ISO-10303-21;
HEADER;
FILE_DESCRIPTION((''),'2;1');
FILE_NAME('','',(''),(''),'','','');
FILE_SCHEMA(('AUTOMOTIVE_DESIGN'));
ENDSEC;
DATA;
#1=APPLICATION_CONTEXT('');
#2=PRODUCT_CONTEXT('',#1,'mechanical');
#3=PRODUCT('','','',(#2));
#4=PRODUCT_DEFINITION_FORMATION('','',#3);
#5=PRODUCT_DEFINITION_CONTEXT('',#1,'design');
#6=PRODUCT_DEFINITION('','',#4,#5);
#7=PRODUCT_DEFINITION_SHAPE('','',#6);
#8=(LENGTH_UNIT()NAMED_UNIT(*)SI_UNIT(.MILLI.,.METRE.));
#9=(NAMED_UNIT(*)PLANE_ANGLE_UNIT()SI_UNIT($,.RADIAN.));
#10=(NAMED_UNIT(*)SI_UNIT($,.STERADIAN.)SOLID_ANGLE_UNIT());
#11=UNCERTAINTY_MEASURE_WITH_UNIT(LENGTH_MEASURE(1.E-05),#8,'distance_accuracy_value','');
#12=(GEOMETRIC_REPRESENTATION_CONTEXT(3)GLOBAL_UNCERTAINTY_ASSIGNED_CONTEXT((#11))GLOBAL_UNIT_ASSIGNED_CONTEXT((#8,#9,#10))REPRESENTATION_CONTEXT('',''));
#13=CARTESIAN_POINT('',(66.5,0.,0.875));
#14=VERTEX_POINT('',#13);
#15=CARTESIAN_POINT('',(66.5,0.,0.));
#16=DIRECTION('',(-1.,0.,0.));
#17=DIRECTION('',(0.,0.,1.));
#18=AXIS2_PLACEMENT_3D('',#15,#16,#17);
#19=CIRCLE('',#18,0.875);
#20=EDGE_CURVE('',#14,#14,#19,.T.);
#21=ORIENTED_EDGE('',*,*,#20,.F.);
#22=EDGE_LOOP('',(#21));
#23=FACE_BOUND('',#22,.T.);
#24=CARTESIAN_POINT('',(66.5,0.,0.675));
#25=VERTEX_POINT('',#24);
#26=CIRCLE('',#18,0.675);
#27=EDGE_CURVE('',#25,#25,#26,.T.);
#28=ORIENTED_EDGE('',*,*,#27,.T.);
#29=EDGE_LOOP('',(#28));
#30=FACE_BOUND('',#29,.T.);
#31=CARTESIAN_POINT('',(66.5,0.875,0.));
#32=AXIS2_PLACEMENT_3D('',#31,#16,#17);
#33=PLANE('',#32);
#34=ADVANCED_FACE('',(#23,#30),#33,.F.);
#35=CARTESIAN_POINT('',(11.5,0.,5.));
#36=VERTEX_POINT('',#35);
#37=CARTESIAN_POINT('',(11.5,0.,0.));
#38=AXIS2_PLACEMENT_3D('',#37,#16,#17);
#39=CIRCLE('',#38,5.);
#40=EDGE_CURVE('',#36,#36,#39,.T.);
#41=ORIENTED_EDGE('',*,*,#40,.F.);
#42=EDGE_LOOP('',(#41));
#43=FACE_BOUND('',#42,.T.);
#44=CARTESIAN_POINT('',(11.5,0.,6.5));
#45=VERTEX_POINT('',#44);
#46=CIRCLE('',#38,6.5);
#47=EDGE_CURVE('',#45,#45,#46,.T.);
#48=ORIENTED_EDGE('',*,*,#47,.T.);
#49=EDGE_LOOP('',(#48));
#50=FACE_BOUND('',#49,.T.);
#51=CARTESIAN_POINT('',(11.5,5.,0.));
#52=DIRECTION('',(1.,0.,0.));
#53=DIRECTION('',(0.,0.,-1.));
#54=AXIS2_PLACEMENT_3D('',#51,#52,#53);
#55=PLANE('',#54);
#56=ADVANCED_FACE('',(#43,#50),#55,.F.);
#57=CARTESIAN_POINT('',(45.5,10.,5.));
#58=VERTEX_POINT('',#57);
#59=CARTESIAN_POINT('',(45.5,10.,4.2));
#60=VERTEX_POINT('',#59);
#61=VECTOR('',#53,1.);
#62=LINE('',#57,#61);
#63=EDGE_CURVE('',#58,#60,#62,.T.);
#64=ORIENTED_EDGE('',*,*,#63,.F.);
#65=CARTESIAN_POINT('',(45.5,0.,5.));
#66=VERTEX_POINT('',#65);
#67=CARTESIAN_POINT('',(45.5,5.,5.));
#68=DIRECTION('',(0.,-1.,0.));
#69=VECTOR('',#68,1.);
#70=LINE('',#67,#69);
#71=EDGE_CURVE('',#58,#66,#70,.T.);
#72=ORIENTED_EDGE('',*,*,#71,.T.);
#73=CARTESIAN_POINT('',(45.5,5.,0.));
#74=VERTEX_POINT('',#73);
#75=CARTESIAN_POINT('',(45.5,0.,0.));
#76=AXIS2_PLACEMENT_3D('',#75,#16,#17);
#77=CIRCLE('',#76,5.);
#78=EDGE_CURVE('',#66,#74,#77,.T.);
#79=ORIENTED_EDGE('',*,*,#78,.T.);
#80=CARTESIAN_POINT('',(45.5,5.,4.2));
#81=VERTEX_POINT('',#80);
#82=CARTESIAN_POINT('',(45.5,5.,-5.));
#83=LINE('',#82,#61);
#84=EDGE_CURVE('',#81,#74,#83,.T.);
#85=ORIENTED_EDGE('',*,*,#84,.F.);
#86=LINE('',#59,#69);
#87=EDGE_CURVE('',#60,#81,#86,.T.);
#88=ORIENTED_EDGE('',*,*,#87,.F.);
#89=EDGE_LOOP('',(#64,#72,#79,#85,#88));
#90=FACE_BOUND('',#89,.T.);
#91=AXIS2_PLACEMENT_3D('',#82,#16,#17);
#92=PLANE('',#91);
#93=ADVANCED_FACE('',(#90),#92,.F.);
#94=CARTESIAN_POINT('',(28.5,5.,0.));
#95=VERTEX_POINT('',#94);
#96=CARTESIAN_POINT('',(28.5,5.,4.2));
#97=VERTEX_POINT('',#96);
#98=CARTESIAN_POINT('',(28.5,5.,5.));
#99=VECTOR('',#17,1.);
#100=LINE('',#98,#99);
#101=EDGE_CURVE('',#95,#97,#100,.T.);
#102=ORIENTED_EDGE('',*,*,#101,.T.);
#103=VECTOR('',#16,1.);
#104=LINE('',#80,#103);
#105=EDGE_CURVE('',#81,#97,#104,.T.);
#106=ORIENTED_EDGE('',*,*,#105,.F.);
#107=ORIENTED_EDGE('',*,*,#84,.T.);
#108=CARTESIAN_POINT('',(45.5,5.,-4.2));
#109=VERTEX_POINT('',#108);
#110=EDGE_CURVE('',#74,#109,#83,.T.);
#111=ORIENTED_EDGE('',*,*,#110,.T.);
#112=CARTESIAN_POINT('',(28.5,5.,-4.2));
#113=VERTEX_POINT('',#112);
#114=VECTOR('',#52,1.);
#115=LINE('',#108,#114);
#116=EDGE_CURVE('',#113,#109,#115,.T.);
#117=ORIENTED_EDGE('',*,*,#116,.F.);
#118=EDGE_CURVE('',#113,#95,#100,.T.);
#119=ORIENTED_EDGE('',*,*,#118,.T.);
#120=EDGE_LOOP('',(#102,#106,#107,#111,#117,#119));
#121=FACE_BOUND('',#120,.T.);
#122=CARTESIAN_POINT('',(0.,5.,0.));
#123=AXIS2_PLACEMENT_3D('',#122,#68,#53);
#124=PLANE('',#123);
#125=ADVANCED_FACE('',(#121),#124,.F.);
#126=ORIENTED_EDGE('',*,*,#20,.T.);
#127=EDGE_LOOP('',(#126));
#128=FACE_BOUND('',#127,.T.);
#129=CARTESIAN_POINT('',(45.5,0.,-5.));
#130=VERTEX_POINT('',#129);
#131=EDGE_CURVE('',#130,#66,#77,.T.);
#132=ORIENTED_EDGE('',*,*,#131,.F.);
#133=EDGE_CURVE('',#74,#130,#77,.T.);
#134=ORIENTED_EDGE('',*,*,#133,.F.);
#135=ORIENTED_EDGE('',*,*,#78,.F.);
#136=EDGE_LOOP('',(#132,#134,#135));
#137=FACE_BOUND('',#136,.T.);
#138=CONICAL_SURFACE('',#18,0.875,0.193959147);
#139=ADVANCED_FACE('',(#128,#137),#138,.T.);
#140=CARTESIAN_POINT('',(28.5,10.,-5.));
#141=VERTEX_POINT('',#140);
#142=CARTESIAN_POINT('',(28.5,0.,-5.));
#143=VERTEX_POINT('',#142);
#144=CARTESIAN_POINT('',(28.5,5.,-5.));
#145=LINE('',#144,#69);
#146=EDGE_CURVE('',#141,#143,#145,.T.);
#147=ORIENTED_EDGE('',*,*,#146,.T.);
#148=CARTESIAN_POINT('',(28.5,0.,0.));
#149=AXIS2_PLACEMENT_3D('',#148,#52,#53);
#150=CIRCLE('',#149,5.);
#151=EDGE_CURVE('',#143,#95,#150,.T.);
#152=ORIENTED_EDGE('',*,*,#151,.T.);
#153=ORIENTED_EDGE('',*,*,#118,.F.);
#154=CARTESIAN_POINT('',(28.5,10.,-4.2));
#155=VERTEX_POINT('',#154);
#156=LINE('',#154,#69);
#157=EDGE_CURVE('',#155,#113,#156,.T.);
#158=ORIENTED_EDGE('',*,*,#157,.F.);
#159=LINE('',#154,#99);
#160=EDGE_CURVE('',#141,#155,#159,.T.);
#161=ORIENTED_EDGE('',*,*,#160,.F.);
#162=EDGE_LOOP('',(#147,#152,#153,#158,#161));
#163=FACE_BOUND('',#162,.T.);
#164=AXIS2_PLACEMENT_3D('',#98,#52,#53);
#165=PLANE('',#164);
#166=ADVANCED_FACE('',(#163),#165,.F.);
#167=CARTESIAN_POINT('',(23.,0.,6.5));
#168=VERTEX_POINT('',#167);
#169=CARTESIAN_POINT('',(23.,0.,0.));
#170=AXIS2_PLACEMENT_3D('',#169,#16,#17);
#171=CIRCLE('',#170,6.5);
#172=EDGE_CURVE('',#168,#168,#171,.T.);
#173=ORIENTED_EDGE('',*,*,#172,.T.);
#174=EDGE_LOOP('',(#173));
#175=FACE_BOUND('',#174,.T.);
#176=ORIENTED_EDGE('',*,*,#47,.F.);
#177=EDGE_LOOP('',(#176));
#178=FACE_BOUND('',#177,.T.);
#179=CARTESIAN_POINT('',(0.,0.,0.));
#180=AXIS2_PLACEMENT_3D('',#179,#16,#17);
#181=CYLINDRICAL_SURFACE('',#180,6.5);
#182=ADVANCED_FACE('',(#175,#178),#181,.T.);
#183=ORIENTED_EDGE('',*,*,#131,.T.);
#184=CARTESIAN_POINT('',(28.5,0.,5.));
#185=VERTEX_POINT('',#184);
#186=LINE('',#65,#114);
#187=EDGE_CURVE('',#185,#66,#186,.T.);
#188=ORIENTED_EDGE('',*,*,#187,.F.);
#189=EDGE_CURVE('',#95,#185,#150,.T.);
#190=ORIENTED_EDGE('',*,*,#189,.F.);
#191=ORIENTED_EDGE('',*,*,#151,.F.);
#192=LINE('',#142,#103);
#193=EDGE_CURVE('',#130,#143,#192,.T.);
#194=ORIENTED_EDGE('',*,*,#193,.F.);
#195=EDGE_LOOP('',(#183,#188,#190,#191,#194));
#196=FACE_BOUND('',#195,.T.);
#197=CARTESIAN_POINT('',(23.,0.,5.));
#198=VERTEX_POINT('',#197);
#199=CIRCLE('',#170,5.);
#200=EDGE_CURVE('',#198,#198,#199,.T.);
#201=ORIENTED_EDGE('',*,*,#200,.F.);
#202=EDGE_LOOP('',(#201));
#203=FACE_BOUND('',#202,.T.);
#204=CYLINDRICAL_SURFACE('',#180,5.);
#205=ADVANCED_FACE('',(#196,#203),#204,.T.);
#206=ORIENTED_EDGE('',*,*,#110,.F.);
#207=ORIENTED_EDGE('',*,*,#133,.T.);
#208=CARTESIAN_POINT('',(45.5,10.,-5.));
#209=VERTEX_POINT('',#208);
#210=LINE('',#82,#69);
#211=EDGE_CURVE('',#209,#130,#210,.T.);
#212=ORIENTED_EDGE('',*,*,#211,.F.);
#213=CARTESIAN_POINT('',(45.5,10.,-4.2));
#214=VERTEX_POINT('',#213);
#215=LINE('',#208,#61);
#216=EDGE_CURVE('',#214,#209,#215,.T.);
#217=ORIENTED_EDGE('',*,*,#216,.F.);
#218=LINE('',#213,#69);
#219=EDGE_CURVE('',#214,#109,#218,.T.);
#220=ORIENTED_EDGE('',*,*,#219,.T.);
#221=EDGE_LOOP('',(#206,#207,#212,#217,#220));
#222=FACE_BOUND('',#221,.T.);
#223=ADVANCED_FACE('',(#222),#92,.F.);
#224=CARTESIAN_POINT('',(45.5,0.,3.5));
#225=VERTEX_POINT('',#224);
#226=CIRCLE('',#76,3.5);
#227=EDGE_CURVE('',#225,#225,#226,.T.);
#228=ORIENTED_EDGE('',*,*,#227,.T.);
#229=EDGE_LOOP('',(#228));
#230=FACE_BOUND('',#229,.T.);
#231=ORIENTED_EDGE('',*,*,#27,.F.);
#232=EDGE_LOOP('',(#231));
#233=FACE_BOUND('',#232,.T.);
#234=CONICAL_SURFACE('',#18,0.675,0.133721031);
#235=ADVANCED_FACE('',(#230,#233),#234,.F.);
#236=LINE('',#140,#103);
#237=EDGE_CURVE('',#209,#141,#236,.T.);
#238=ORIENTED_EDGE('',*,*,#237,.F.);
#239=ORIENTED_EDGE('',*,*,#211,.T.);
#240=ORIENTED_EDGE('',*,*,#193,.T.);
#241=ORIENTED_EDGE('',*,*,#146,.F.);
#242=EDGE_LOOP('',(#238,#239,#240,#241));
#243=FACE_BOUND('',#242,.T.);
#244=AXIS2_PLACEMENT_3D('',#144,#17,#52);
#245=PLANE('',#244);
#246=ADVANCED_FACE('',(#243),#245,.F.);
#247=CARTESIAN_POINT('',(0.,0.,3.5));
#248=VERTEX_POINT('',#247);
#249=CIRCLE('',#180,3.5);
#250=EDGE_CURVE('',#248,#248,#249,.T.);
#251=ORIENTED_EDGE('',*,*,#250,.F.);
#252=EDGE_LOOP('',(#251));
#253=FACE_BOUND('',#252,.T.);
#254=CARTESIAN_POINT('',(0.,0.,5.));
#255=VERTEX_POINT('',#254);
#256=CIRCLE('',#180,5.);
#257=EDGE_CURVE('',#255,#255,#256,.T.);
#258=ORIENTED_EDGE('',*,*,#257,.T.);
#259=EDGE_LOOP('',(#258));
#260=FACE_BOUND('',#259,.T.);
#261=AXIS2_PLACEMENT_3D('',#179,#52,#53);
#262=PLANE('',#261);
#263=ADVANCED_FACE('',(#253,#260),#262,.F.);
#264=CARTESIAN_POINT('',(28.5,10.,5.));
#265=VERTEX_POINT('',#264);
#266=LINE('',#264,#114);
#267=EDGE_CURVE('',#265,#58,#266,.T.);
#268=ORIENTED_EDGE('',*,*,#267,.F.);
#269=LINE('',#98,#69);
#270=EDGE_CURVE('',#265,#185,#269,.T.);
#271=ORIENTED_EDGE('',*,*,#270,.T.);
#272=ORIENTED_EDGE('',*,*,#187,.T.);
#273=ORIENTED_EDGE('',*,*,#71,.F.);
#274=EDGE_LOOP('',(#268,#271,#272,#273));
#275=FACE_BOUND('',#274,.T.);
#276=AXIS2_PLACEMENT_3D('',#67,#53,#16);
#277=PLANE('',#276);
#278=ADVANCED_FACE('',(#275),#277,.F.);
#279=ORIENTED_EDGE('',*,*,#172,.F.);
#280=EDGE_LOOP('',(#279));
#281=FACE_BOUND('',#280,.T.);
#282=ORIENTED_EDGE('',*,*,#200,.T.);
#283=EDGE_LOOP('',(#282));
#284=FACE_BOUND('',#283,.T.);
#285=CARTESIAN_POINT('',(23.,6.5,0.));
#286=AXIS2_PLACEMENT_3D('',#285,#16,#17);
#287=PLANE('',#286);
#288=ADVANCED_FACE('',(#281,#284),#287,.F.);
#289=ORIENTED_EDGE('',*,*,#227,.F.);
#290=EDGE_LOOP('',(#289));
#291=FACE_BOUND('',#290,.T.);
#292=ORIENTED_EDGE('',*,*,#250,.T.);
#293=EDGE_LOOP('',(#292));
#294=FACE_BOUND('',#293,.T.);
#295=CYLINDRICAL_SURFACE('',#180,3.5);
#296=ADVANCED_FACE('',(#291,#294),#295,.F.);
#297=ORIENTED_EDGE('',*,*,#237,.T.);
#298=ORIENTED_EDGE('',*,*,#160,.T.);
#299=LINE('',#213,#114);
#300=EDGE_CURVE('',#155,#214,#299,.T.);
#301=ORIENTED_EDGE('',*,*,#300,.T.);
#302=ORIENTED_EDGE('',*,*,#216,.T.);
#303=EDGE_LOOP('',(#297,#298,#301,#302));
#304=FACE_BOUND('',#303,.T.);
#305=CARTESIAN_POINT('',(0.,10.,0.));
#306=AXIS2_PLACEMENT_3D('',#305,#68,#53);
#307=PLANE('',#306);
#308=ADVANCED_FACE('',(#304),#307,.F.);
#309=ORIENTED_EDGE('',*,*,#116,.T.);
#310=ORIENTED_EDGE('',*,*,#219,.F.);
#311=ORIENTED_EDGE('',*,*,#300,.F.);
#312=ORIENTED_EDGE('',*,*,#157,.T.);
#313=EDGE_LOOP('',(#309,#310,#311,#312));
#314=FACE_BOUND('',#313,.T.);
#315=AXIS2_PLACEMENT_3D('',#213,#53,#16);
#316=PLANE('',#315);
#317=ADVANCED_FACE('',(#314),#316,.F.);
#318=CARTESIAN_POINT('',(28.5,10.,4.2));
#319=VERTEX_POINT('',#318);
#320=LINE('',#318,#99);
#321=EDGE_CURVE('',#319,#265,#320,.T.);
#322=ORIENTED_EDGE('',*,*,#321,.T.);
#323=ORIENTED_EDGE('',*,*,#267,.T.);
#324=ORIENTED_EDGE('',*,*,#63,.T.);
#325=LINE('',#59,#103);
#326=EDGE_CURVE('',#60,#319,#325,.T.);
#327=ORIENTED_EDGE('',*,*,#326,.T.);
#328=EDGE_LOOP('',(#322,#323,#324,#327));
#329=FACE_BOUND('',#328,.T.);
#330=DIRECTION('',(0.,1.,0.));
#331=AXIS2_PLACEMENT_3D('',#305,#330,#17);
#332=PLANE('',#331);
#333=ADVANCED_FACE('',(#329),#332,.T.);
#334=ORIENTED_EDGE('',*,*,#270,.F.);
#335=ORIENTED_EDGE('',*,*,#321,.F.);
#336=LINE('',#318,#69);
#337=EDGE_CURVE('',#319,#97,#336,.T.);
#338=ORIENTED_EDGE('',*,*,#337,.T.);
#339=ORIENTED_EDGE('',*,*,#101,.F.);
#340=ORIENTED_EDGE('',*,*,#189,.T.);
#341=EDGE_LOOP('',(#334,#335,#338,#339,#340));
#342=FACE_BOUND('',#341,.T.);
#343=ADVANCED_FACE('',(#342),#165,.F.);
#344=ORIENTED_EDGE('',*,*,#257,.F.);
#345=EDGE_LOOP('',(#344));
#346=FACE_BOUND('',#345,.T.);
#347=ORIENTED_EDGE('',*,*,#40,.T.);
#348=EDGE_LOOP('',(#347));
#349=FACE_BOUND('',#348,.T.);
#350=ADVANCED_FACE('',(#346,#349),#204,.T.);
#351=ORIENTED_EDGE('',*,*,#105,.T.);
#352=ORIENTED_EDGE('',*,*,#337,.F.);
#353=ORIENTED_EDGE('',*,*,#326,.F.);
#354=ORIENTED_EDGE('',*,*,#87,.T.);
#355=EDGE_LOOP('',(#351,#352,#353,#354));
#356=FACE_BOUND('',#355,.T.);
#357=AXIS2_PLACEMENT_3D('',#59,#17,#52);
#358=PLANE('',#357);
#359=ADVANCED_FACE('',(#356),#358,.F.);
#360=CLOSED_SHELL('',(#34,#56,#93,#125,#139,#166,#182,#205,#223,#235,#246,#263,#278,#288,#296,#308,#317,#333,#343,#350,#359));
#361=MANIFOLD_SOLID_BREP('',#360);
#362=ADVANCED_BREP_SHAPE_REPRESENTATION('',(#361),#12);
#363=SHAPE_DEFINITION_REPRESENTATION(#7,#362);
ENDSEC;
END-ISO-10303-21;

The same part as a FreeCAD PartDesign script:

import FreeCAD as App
import Part
import Sketcher
from FreeCAD import Vector
Q = App.Units.Quantity

doc = App.newDocument("Part")
body = doc.addObject("PartDesign::Body", "Body")

# Sketch on XY plane
sketch1 = body.newObject("Sketcher::SketchObject", "Sketch")
sketch1.AttachmentSupport = (doc.getObject("XY_Plane"), [""])
sketch1.MapMode = "FlatFace"
sketch1.addGeometry([
    Part.LineSegment(Vector(0, 5, 0), Vector(0, 0, 0)),  # 0
    Part.LineSegment(Vector(0, 0, 0), Vector(66.5, 0, 0)),  # 1
    Part.LineSegment(Vector(66.5, 0, 0), Vector(66.5, 0.875, 0)),  # 2
    Part.LineSegment(Vector(66.5, 0.875, 0), Vector(45.5, 5, 0)),  # 3
    Part.LineSegment(Vector(45.5, 5, 0), Vector(23, 5, 0)),  # 4
    Part.LineSegment(Vector(23, 5, 0), Vector(23, 6.5, 0)),  # 5
    Part.LineSegment(Vector(23, 6.5, 0), Vector(11.5, 6.5, 0)),  # 6
    Part.LineSegment(Vector(11.5, 6.5, 0), Vector(11.5, 5, 0)),  # 7
    Part.LineSegment(Vector(11.5, 5, 0), Vector(0, 5, 0)),  # 8
], False)
sketch1.addConstraint([
    Sketcher.Constraint("Coincident", 0, 2, 1, 1),
    Sketcher.Constraint("Coincident", 1, 2, 2, 1),
    Sketcher.Constraint("Coincident", 2, 2, 3, 1),
    Sketcher.Constraint("Coincident", 3, 2, 4, 1),
    Sketcher.Constraint("Coincident", 4, 2, 5, 1),
    Sketcher.Constraint("Coincident", 5, 2, 6, 1),
    Sketcher.Constraint("Coincident", 6, 2, 7, 1),
    Sketcher.Constraint("Coincident", 7, 2, 8, 1),
    Sketcher.Constraint("Coincident", 8, 2, 0, 1),
    Sketcher.Constraint("Vertical", 0),
    Sketcher.Constraint("Horizontal", 1),
    Sketcher.Constraint("Vertical", 2),
    Sketcher.Constraint("Horizontal", 4),
    Sketcher.Constraint("Vertical", 5),
    Sketcher.Constraint("Horizontal", 6),
    Sketcher.Constraint("Vertical", 7),
    Sketcher.Constraint("Horizontal", 8),
    Sketcher.Constraint("Coincident", 0, 2, -1, 1),
    Sketcher.Constraint("Horizontal", 4, 2, 7, 2),
    Sketcher.Constraint("Equal", 6, 8),
    Sketcher.Constraint("DistanceY", 0, 2, 0, 1, Q("5 mm")),
    Sketcher.Constraint("DistanceX", 1, 1, 1, 2, Q("66.5 mm")),
    Sketcher.Constraint("DistanceX", 4, 2, 4, 1, Q("22.5 mm")),
    Sketcher.Constraint("DistanceX", 6, 2, 6, 1, Q("11.5 mm")),
    Sketcher.Constraint("DistanceY", 5, 1, 5, 2, Q("1.5 mm")),
    Sketcher.Constraint("DistanceY", 2, 1, 2, 2, Q("0.875 mm")),
])
revolution = body.newObject("PartDesign::Revolution", "Revolution")
revolution.Profile = sketch1
revolution.ReferenceAxis = (sketch1, ["H_Axis"])
revolution.Angle = 360

# Sketch on XZ plane
sketch2 = body.newObject("Sketcher::SketchObject", "Sketch001")
sketch2.AttachmentSupport = (doc.getObject("XZ_Plane"), [""])
sketch2.MapMode = "FlatFace"
sketch2.addGeometry([
    Part.LineSegment(Vector(28.5, -5, 0), Vector(28.5, 5, 0)),
    Part.LineSegment(Vector(28.5, 5, 0), Vector(45.5, 5, 0)),
    Part.LineSegment(Vector(45.5, 5, 0), Vector(45.5, -5, 0)),
    Part.LineSegment(Vector(45.5, -5, 0), Vector(28.5, -5, 0)),
], False)
sketch2.addConstraint([
    Sketcher.Constraint("Coincident", 0, 2, 1, 1),
    Sketcher.Constraint("Coincident", 1, 2, 2, 1),
    Sketcher.Constraint("Coincident", 2, 2, 3, 1),
    Sketcher.Constraint("Coincident", 3, 2, 0, 1),
    Sketcher.Constraint("Vertical", 0),
    Sketcher.Constraint("Horizontal", 1),
    Sketcher.Constraint("Vertical", 2),
    Sketcher.Constraint("Horizontal", 3),
    Sketcher.Constraint("DistanceX", 1, 1, 1, 2, Q("17 mm")),
    Sketcher.Constraint("DistanceY", 0, 1, 0, 2, Q("10 mm")),
    Sketcher.Constraint("DistanceY", -1, 1, 0, 2, Q("5 mm")),
    Sketcher.Constraint("DistanceX", -1, 1, 0, 2, Q("28.5 mm")),
])
pad1 = body.newObject("PartDesign::Pad", "Pad")
pad1.Profile = sketch2
pad1.Length = 5
pad1.Reversed = True

# Sketch on XZ plane
sketch3 = body.newObject("Sketcher::SketchObject", "Sketch002")
sketch3.AttachmentSupport = (doc.getObject("XZ_Plane"), [""])
sketch3.MapMode = "FlatFace"
sketch3.AttachmentOffset = App.Placement(Vector(0, 0, -5), App.Rotation())
sketch3.addGeometry([
    Part.LineSegment(Vector(28.5, 4.2, 0), Vector(28.5, 5, 0)),  # 0
    Part.LineSegment(Vector(28.5, 5, 0), Vector(45.5, 5, 0)),  # 1
    Part.LineSegment(Vector(45.5, 5, 0), Vector(45.5, 4.2, 0)),  # 2
    Part.LineSegment(Vector(45.5, 4.2, 0), Vector(28.5, 4.2, 0)),  # 3
    Part.LineSegment(Vector(28.5, -5, 0), Vector(28.5, -4.2, 0)),  # 4
    Part.LineSegment(Vector(28.5, -4.2, 0), Vector(45.5, -4.2, 0)),  # 5
    Part.LineSegment(Vector(45.5, -4.2, 0), Vector(45.5, -5, 0)),  # 6
    Part.LineSegment(Vector(45.5, -5, 0), Vector(28.5, -5, 0)),  # 7
], False)
sketch3.addConstraint([
    Sketcher.Constraint("Coincident", 0, 2, 1, 1),
    Sketcher.Constraint("Coincident", 1, 2, 2, 1),
    Sketcher.Constraint("Coincident", 2, 2, 3, 1),
    Sketcher.Constraint("Coincident", 3, 2, 0, 1),
    Sketcher.Constraint("Coincident", 4, 2, 5, 1),
    Sketcher.Constraint("Coincident", 5, 2, 6, 1),
    Sketcher.Constraint("Coincident", 6, 2, 7, 1),
    Sketcher.Constraint("Coincident", 7, 2, 4, 1),
    Sketcher.Constraint("Vertical", 0),
    Sketcher.Constraint("Horizontal", 1),
    Sketcher.Constraint("Vertical", 2),
    Sketcher.Constraint("Horizontal", 3),
    Sketcher.Constraint("Vertical", 4),
    Sketcher.Constraint("Horizontal", 5),
    Sketcher.Constraint("Vertical", 6),
    Sketcher.Constraint("Horizontal", 7),
    Sketcher.Constraint("Symmetric", 3, 2, 4, 2, -1),
    Sketcher.Constraint("Symmetric", 1, 2, 6, 2, -1),
    Sketcher.Constraint("DistanceX", 1, 1, 1, 2, Q("17 mm")),
    Sketcher.Constraint("DistanceY", 0, 1, 0, 2, Q("0.8 mm")),
    Sketcher.Constraint("DistanceY", -1, 1, 0, 2, Q("5 mm")),
    Sketcher.Constraint("DistanceX", -1, 1, 0, 2, Q("28.5 mm")),
])
pad2 = body.newObject("PartDesign::Pad", "Pad001")
pad2.Profile = sketch3
pad2.Length = 5
pad2.Reversed = True

# Sketch on XY plane
sketch4 = body.newObject("Sketcher::SketchObject", "Sketch003")
sketch4.AttachmentSupport = (doc.getObject("XY_Plane"), [""])
sketch4.MapMode = "FlatFace"
sketch4.addGeometry([
    Part.LineSegment(Vector(0, 3.5, 0), Vector(0, 0, 0)),  # 0
    Part.LineSegment(Vector(0, 0, 0), Vector(66.5, 0, 0)),  # 1
    Part.LineSegment(Vector(66.5, 0, 0), Vector(66.5, 0.675, 0)),  # 2
    Part.LineSegment(Vector(66.5, 0.675, 0), Vector(45.5, 3.5, 0)),  # 3
    Part.LineSegment(Vector(45.5, 3.5, 0), Vector(0, 3.5, 0)),  # 4
], False)
sketch4.addConstraint([
    Sketcher.Constraint("Coincident", 0, 2, 1, 1),
    Sketcher.Constraint("Coincident", 1, 2, 2, 1),
    Sketcher.Constraint("Coincident", 2, 2, 3, 1),
    Sketcher.Constraint("Coincident", 3, 2, 4, 1),
    Sketcher.Constraint("Coincident", 4, 2, 0, 1),
    Sketcher.Constraint("Vertical", 0),
    Sketcher.Constraint("Horizontal", 1),
    Sketcher.Constraint("Vertical", 2),
    Sketcher.Constraint("Horizontal", 4),
    Sketcher.Constraint("Coincident", 0, 2, -1, 1),
    Sketcher.Constraint("DistanceX", 1, 1, 1, 2, Q("66.5 mm")),
    Sketcher.Constraint("DistanceX", 4, 2, 4, 1, Q("45.5 mm")),
    Sketcher.Constraint("DistanceY", 0, 2, 0, 1, Q("3.5 mm")),
    Sketcher.Constraint("DistanceY", 2, 1, 2, 2, Q("0.675 mm")),
])
groove = body.newObject("PartDesign::Groove", "Groove")
groove.Profile = sketch4
groove.ReferenceAxis = (sketch4, ["H_Axis"])
groove.Angle = 360

doc.recompute()
